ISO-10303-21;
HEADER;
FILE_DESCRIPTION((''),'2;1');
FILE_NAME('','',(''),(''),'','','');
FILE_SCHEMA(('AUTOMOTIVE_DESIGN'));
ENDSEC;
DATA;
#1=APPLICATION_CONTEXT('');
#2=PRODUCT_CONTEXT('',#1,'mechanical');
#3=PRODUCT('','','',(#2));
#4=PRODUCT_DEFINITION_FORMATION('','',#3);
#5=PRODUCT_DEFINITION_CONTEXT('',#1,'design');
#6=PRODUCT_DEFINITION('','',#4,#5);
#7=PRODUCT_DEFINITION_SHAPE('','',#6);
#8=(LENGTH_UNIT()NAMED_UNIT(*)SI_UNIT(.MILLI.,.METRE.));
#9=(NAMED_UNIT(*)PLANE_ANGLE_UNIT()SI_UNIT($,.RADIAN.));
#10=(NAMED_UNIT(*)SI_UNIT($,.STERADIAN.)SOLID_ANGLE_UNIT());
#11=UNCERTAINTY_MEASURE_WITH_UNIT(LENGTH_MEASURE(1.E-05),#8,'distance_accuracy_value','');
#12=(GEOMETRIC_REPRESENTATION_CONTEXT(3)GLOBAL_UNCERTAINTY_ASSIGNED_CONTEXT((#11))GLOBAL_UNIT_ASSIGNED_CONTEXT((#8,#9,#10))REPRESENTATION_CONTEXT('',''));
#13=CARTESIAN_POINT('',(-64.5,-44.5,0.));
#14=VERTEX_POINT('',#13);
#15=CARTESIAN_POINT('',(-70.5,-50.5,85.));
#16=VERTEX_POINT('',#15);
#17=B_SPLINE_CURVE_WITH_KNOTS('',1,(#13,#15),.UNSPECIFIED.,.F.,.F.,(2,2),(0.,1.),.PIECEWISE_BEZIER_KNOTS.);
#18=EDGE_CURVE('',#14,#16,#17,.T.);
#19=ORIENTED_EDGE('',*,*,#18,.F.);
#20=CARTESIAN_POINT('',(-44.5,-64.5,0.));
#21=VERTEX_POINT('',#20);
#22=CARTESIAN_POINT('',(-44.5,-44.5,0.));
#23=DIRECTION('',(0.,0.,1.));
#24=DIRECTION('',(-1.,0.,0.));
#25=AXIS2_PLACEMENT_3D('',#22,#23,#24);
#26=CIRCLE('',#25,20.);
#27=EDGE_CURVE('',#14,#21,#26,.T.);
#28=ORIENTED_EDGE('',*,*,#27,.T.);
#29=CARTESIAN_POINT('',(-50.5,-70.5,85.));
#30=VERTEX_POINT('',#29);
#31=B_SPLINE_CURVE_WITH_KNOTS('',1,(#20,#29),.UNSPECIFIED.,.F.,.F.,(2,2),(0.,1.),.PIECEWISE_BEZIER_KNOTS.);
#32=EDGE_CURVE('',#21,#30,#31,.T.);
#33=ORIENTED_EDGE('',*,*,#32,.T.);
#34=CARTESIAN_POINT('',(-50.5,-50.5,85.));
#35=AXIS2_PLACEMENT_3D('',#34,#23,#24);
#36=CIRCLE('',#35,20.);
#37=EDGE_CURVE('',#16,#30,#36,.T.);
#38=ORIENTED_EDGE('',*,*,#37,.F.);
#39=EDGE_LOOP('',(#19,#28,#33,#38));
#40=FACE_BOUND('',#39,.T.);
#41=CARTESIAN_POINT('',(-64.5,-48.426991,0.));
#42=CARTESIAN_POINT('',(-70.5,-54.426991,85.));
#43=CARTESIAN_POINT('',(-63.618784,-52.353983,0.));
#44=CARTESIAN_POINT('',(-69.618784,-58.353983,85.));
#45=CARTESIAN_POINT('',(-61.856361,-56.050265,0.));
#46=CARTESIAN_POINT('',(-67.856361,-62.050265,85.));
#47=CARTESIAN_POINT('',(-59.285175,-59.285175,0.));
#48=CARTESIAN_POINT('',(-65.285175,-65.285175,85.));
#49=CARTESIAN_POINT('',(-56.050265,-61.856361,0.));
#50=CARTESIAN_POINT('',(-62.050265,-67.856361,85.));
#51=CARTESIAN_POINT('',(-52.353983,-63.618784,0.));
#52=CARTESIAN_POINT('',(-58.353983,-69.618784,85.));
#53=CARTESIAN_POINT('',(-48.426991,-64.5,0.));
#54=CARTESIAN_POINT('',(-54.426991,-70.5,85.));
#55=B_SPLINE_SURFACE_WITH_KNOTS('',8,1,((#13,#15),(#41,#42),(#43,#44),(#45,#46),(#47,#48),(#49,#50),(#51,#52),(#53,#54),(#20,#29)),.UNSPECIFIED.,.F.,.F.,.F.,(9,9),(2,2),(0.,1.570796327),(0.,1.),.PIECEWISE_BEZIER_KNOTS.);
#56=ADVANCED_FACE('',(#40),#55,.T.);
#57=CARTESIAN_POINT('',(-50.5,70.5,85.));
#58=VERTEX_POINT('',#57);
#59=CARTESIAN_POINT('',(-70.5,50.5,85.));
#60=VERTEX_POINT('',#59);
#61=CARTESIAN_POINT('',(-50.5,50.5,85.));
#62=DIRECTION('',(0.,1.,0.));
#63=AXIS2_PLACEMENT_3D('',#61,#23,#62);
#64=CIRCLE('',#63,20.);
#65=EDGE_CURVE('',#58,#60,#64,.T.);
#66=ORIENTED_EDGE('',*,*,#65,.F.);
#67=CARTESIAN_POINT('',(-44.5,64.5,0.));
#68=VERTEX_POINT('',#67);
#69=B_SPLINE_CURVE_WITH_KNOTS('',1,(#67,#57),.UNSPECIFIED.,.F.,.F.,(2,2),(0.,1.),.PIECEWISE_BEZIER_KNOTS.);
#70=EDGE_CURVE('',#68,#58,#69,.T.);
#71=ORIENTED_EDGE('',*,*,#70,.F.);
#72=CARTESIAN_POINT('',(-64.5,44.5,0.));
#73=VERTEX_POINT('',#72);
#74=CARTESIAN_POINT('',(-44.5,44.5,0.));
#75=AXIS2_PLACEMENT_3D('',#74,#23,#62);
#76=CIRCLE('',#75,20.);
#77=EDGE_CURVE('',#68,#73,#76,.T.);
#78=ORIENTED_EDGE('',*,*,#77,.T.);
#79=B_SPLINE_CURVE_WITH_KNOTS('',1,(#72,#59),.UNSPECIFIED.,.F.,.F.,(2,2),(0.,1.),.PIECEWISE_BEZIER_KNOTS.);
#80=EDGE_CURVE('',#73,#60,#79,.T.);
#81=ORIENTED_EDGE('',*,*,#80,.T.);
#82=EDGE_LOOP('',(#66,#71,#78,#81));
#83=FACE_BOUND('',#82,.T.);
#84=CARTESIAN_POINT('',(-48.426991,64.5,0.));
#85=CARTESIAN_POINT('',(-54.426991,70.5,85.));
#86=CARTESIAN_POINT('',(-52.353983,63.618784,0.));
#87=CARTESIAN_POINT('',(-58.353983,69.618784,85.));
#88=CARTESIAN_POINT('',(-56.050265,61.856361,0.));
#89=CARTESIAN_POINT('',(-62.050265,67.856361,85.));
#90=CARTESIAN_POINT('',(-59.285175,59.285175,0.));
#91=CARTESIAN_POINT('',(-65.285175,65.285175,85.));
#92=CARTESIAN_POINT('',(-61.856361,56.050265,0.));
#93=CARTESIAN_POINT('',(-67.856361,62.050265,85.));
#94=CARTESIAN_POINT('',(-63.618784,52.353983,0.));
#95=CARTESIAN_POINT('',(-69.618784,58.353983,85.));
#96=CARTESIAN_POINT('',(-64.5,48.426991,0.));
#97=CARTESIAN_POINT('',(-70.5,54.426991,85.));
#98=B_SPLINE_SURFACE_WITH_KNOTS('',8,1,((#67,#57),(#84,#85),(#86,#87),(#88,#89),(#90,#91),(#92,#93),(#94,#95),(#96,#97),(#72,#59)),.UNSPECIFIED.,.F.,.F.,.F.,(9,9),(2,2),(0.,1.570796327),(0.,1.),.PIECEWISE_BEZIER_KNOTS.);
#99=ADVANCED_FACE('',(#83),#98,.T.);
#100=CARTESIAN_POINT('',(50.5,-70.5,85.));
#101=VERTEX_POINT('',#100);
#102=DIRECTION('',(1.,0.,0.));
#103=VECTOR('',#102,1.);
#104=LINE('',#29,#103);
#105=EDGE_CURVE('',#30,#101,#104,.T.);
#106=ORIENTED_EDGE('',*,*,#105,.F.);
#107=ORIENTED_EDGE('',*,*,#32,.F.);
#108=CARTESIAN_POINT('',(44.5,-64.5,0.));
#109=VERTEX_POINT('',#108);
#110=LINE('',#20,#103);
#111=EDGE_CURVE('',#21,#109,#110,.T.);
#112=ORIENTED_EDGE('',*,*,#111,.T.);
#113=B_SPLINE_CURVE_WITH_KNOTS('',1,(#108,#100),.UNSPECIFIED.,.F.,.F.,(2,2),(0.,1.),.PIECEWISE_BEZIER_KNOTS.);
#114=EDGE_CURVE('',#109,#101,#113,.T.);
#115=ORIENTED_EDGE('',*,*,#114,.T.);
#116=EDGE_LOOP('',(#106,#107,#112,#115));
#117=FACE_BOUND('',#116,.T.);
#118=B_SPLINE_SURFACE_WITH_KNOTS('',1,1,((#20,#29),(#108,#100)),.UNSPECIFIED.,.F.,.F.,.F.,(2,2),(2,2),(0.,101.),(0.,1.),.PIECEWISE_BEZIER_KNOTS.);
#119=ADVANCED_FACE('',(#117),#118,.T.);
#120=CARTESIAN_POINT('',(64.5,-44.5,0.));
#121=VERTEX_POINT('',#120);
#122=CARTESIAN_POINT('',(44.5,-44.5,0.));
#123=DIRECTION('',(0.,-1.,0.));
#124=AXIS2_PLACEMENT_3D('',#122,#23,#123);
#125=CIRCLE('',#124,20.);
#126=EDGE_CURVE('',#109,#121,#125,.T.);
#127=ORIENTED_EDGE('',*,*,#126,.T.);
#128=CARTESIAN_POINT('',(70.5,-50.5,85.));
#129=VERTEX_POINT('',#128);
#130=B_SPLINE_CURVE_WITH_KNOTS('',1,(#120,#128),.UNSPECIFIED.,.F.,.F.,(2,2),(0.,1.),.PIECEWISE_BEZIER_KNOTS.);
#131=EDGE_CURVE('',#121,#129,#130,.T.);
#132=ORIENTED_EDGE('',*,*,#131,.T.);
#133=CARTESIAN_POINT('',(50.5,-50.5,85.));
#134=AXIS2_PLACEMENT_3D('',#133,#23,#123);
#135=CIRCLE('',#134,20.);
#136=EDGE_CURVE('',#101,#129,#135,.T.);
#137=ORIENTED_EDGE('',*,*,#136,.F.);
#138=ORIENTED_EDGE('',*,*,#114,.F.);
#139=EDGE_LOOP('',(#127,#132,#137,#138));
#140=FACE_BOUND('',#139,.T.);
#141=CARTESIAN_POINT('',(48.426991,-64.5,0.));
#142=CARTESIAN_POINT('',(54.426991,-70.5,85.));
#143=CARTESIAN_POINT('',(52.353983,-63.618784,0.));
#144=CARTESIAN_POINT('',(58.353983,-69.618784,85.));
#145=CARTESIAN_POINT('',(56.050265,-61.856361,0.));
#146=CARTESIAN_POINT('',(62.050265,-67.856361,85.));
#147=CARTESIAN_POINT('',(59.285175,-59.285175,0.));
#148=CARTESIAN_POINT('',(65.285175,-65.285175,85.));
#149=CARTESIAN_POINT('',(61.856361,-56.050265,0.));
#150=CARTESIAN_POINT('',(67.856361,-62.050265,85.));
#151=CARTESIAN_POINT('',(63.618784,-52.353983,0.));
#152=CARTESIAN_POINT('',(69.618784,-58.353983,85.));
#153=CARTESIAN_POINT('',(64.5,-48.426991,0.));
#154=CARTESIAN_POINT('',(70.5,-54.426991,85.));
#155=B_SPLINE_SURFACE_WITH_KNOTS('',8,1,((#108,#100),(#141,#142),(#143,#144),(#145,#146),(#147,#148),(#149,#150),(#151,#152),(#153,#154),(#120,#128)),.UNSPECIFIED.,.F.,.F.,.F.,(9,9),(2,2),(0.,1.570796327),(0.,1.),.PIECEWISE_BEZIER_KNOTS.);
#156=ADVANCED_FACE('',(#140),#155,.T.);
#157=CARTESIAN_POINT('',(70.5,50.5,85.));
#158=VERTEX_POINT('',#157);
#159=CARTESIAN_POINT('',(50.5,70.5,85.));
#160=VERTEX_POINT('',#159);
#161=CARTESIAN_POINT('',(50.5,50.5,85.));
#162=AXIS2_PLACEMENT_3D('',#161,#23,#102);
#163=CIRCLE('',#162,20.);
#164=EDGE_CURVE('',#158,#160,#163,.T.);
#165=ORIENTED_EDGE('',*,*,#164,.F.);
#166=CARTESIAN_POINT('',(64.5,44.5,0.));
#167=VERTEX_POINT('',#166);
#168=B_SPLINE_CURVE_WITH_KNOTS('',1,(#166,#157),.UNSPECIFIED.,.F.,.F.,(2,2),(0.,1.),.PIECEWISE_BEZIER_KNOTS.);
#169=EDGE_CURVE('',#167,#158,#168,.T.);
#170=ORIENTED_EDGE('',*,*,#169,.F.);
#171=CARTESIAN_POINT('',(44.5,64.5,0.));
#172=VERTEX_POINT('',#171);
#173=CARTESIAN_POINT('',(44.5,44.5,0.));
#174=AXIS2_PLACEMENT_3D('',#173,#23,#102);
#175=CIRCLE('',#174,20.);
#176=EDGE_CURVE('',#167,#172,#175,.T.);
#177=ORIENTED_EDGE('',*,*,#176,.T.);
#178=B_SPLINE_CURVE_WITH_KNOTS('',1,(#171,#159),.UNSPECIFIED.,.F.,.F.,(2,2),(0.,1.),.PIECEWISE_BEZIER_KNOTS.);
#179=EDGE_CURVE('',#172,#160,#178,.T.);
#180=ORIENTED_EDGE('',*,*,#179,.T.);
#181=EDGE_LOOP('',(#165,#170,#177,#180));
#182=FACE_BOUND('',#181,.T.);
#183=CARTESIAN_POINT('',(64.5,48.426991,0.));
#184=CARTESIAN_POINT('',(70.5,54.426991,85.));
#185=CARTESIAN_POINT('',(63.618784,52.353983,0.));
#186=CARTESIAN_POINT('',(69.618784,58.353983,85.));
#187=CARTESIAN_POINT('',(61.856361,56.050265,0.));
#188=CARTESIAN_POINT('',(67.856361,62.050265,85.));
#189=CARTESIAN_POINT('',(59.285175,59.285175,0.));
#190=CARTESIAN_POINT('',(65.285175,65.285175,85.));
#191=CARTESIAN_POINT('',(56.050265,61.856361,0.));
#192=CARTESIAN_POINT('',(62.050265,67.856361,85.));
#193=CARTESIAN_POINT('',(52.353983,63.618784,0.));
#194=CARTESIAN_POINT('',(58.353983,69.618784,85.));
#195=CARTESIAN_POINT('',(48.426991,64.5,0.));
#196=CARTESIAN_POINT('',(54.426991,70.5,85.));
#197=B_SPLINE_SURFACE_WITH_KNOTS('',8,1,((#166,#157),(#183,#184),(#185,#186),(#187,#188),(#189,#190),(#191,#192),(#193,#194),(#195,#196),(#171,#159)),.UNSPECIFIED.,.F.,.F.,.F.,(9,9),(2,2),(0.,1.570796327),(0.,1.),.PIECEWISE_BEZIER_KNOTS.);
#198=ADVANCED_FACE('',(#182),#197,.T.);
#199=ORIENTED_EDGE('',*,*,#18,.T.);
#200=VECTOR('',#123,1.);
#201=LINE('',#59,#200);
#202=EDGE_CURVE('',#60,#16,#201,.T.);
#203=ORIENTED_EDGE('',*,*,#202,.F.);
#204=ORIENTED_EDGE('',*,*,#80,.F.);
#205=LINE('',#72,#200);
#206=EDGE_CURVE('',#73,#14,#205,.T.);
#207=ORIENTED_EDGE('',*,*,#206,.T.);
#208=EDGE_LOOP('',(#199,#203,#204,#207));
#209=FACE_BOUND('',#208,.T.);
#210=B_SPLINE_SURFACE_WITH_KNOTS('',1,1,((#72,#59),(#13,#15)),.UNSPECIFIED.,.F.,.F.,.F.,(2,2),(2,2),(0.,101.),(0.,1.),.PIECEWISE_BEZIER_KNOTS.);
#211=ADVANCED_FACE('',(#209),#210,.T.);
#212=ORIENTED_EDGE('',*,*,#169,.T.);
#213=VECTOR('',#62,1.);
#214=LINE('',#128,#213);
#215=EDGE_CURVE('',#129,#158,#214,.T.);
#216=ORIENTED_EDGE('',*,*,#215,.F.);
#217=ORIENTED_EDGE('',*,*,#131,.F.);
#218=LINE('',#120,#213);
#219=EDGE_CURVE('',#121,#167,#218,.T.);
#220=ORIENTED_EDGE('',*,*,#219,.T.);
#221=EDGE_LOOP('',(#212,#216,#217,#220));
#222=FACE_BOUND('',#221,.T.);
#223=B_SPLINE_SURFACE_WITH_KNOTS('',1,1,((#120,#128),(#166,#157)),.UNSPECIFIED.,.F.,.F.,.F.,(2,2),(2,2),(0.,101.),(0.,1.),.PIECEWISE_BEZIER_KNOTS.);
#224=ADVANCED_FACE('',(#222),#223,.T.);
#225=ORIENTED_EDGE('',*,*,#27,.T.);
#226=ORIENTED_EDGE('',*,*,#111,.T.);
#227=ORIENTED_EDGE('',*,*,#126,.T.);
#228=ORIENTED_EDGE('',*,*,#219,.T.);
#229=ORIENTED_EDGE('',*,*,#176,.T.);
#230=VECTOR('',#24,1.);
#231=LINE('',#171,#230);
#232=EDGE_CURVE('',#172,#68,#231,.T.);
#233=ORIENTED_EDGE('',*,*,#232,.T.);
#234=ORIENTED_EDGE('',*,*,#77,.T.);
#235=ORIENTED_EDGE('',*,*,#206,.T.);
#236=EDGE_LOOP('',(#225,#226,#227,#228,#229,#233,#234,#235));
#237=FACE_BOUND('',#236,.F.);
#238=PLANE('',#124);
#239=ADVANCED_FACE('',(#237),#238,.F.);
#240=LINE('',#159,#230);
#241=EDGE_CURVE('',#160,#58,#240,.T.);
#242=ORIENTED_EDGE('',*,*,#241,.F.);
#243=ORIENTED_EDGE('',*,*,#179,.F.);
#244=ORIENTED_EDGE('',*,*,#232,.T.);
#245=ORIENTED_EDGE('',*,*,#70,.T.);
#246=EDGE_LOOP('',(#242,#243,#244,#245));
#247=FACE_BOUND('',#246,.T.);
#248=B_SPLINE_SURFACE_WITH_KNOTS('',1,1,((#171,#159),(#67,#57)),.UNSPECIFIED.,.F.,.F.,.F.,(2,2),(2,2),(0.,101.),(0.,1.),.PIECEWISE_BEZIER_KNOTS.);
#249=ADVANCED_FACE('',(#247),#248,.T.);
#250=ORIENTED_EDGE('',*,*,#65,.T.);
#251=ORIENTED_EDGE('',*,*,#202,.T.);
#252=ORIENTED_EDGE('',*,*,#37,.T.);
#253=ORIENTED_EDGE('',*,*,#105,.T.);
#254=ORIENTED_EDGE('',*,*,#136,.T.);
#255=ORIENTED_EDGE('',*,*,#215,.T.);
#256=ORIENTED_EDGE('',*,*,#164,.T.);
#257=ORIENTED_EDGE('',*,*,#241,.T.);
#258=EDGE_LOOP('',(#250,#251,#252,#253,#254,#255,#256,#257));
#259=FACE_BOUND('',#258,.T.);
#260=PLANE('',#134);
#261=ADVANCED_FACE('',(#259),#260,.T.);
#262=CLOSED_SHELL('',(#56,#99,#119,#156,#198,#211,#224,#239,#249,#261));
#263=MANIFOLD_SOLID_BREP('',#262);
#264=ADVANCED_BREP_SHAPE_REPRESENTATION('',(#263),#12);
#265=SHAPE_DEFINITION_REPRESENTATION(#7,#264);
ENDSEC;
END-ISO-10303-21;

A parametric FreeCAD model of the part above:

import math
import FreeCAD as App
import Part
import Sketcher
from FreeCAD import Vector
Q = App.Units.Quantity

doc = App.newDocument("Part")
body = doc.addObject("PartDesign::Body", "Body")

# Sketch on XY plane
sketch1 = doc.addObject("Sketcher::SketchObject", "Sketch")
body.addObject(sketch1)
sketch1.AttachmentSupport = (doc.XY_Plane, [""])
sketch1.MapMode = "FlatFace"
sketch1.addGeometry([
    Part.LineSegment(Vector(-44, -64, 0), Vector(44, -64, 0)),  # 0
    Part.ArcOfCircle(Part.Circle(Vector(44, -44, 0), Vector(0, 0, 1), 20), math.radians(-90), math.radians(0)),  # 1
    Part.LineSegment(Vector(64, -44, 0), Vector(64, 44, 0)),  # 2
    Part.ArcOfCircle(Part.Circle(Vector(44, 44, 0), Vector(0, 0, 1), 20), math.radians(0), math.radians(90)),  # 3
    Part.LineSegment(Vector(44, 64, 0), Vector(-44, 64, 0)),  # 4
    Part.ArcOfCircle(Part.Circle(Vector(-44, 44, 0), Vector(0, 0, 1), 20), math.radians(90), math.radians(180)),  # 5
    Part.LineSegment(Vector(-64, 44, 0), Vector(-64, -44, 0)),  # 6
    Part.ArcOfCircle(Part.Circle(Vector(-44, -44, 0), Vector(0, 0, 1), 20), math.radians(180), math.radians(270)),  # 7
], False)
sketch1.addConstraint([
    Sketcher.Constraint("Tangent", 0, 2, 1, 1),
    Sketcher.Constraint("Tangent", 1, 2, 2, 1),
    Sketcher.Constraint("Tangent", 2, 2, 3, 1),
    Sketcher.Constraint("Tangent", 3, 2, 4, 1),
    Sketcher.Constraint("Tangent", 4, 2, 5, 1),
    Sketcher.Constraint("Tangent", 5, 2, 6, 1),
    Sketcher.Constraint("Tangent", 6, 2, 7, 1),
    Sketcher.Constraint("Tangent", 7, 2, 0, 1),
    Sketcher.Constraint("Horizontal", 0),
    Sketcher.Constraint("Vertical", 2),
    Sketcher.Constraint("Horizontal", 4),
    Sketcher.Constraint("Vertical", 6),
    Sketcher.Constraint("Equal", 1, 3),
    Sketcher.Constraint("Equal", 3, 5),
    Sketcher.Constraint("Equal", 5, 7),
    Sketcher.Constraint("Symmetric", 1, 3, 5, 3, -1, 1),
    Sketcher.Constraint("Equal", 4, 2),
    Sketcher.Constraint("Radius", 1, Q("20 mm")),
    Sketcher.Constraint("DistanceX", 0, 1, 0, 2, Q("89 mm")),
])

# Sketch on XY plane
sketch2 = doc.addObject("Sketcher::SketchObject", "Sketch001")
body.addObject(sketch2)
sketch2.AttachmentSupport = (doc.XY_Plane, [""])
sketch2.MapMode = "FlatFace"
sketch2.AttachmentOffset = App.Placement(Vector(0, 0, 85), App.Rotation())
sketch2.addGeometry([
    Part.ArcOfCircle(Part.Circle(Vector(50, 50, 0), Vector(0, 0, 1), 20), math.radians(0), math.radians(90)),  # 0
    Part.LineSegment(Vector(50, 70, 0), Vector(-50, 70, 0)),  # 1
    Part.ArcOfCircle(Part.Circle(Vector(-50, 50, 0), Vector(0, 0, 1), 20), math.radians(90), math.radians(180)),  # 2
    Part.LineSegment(Vector(-70, 50, 0), Vector(-70, -50, 0)),  # 3
    Part.ArcOfCircle(Part.Circle(Vector(-50, -50, 0), Vector(0, 0, 1), 20), math.radians(180), math.radians(270)),  # 4
    Part.LineSegment(Vector(-50, -70, 0), Vector(50, -70, 0)),  # 5
    Part.ArcOfCircle(Part.Circle(Vector(50, -50, 0), Vector(0, 0, 1), 20), math.radians(-90), math.radians(0)),  # 6
    Part.LineSegment(Vector(70, -50, 0), Vector(70, 50, 0)),  # 7
], False)
sketch2.addConstraint([
    Sketcher.Constraint("Tangent", 0, 2, 1, 1),
    Sketcher.Constraint("Tangent", 1, 2, 2, 1),
    Sketcher.Constraint("Tangent", 2, 2, 3, 1),
    Sketcher.Constraint("Tangent", 3, 2, 4, 1),
    Sketcher.Constraint("Tangent", 4, 2, 5, 1),
    Sketcher.Constraint("Tangent", 5, 2, 6, 1),
    Sketcher.Constraint("Tangent", 6, 2, 7, 1),
    Sketcher.Constraint("Tangent", 7, 2, 0, 1),
    Sketcher.Constraint("Horizontal", 1),
    Sketcher.Constraint("Vertical", 3),
    Sketcher.Constraint("Horizontal", 5),
    Sketcher.Constraint("Vertical", 7),
    Sketcher.Constraint("Equal", 0, 2),
    Sketcher.Constraint("Equal", 2, 4),
    Sketcher.Constraint("Equal", 4, 6),
    Sketcher.Constraint("Symmetric", 0, 3, 4, 3, -1, 1),
    Sketcher.Constraint("Equal", 5, 3),
    Sketcher.Constraint("Radius", 0, Q("20 mm")),
    Sketcher.Constraint("DistanceX", 1, 2, 1, 1, Q("101 mm")),
])

additiveloft = doc.addObject("PartDesign::AdditiveLoft", "AdditiveLoft")
body.addObject(additiveloft)
additiveloft.Profile = sketch1
additiveloft.Sections = [sketch2]

doc.recompute()
